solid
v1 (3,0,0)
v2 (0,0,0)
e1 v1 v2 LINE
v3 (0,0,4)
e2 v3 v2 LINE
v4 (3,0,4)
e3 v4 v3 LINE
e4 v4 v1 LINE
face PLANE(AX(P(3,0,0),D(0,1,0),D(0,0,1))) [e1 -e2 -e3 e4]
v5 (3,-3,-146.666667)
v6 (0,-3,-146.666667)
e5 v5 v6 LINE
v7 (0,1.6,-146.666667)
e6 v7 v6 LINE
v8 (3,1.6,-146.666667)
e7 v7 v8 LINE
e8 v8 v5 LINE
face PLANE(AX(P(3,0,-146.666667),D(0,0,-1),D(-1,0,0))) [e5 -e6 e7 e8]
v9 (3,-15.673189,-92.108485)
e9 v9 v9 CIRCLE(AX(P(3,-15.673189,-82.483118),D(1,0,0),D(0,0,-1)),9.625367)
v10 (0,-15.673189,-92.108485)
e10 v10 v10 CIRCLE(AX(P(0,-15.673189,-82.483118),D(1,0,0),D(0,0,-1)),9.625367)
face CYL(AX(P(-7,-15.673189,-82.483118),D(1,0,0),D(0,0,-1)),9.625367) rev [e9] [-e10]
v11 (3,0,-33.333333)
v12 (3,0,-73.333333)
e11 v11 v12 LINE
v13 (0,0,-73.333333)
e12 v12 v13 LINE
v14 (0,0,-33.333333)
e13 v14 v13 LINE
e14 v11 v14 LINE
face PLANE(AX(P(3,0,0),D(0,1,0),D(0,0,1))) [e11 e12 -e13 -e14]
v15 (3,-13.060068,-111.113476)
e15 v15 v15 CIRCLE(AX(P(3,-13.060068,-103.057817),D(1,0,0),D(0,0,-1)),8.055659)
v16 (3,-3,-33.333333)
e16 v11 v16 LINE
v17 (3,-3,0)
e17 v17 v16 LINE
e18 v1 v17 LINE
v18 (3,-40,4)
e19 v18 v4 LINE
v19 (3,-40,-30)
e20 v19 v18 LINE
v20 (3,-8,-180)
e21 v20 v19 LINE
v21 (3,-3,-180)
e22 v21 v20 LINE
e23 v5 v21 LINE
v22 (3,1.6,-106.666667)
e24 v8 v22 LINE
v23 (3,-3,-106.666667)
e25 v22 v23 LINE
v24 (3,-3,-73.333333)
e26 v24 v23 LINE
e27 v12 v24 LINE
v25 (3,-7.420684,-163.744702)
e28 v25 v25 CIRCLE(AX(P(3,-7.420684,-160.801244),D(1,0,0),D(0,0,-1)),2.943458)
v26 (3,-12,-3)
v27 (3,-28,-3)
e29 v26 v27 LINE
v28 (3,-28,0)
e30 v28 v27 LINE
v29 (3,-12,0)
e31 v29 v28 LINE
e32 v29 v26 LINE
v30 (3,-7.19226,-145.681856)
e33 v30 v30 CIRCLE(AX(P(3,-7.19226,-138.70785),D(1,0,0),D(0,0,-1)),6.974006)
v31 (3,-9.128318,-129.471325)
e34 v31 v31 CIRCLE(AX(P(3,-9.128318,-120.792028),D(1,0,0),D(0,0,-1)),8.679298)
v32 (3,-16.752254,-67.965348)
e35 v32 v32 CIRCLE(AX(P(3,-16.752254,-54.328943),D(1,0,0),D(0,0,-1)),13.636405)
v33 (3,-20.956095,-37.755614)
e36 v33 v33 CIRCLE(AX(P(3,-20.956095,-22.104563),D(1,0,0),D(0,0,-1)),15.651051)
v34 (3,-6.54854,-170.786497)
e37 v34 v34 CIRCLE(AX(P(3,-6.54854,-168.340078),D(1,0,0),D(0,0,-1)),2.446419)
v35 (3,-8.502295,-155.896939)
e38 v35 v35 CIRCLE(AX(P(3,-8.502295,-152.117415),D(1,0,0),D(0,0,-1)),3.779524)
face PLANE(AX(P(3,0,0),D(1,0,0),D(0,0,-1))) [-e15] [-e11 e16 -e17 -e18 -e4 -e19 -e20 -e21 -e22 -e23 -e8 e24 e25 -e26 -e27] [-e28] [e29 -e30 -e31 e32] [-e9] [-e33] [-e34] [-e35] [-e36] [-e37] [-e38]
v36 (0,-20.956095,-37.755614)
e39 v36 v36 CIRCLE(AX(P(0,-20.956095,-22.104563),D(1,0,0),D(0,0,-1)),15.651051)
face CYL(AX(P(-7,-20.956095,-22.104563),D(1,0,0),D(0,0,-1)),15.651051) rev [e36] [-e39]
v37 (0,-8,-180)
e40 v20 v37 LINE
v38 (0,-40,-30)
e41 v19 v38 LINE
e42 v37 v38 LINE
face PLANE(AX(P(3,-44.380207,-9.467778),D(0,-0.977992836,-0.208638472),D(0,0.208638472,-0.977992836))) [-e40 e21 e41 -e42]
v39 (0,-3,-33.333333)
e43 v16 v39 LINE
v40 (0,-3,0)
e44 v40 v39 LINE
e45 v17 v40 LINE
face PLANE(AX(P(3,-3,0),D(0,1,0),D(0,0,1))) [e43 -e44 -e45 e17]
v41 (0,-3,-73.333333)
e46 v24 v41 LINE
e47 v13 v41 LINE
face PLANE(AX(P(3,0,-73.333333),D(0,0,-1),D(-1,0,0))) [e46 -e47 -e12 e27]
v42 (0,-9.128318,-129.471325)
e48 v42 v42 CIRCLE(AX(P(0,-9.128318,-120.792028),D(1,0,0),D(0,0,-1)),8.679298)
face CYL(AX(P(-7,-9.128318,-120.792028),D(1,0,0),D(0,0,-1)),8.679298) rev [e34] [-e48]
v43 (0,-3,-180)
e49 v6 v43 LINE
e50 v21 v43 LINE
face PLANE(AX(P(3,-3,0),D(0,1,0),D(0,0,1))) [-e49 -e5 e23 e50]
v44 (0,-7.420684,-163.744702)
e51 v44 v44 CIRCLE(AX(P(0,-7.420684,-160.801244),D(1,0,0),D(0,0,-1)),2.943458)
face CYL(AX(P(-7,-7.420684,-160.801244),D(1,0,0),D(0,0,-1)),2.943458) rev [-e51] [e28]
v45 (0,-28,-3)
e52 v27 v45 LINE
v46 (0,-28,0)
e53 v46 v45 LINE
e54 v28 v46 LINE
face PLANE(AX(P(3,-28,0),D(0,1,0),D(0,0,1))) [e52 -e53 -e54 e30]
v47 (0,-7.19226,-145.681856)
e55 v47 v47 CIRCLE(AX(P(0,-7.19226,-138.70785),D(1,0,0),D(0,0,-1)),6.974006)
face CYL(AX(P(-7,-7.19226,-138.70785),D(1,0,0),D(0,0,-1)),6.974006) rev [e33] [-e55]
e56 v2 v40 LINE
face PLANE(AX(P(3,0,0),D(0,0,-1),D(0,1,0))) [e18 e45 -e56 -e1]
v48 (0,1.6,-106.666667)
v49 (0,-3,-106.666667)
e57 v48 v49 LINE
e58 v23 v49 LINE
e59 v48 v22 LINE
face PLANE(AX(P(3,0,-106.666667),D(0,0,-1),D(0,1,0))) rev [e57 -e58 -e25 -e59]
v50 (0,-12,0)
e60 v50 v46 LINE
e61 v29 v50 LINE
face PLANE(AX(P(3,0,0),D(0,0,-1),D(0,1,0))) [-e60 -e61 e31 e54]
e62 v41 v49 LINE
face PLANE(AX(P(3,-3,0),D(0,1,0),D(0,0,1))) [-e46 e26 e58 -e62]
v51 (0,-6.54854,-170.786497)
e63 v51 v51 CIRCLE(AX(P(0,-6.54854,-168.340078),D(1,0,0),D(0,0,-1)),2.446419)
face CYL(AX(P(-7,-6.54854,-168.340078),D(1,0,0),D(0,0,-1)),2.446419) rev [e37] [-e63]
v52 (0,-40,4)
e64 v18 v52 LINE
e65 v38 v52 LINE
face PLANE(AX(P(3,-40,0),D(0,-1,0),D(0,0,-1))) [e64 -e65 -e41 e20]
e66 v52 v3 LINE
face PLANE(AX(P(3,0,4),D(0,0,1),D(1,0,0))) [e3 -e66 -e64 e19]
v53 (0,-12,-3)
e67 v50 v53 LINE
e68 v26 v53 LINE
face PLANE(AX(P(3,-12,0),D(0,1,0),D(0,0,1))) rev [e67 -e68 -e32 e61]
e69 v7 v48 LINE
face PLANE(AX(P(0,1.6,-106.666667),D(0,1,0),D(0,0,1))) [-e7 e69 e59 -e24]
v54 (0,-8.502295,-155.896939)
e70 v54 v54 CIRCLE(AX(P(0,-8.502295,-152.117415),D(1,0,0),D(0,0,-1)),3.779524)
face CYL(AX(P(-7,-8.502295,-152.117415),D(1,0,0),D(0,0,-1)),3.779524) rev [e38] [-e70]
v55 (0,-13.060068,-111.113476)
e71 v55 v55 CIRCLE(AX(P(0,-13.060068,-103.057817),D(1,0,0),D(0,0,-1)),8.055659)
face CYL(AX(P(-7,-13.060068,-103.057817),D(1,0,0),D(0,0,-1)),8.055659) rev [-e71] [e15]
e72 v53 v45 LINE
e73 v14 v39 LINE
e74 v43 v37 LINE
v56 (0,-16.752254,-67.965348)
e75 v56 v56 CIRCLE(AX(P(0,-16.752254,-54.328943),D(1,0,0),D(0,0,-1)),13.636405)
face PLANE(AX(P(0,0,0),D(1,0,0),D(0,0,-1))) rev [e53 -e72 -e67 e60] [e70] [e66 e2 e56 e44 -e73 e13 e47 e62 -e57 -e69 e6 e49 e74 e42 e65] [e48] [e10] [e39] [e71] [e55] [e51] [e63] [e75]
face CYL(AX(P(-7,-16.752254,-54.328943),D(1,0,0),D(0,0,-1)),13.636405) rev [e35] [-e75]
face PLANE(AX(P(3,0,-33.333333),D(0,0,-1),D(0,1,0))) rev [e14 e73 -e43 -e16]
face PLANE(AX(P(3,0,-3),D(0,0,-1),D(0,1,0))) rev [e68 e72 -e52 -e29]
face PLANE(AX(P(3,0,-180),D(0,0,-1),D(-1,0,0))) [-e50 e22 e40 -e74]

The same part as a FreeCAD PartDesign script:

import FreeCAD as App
import Part
import Sketcher
from FreeCAD import Vector


def add_polygon(sketch, points):
    """Adds a closed chain of lines whose ends are joined by coincident constraints."""
    first, n = sketch.GeometryCount, len(points)
    for a, b in zip(points, points[1:] + points[:1]):
        sketch.addGeometry(Part.LineSegment(App.Vector(*a, 0), App.Vector(*b, 0)), False)
    for i in range(n):
        sketch.addConstraint(Sketcher.Constraint("Coincident", first + i, 2, first + (i + 1) % n, 1))

doc = App.newDocument("Part")
body = doc.addObject("PartDesign::Body", "Body")

# Sketch on YZ plane
sketch1 = body.newObject("Sketcher::SketchObject", "Sketch")
sketch1.AttachmentSupport = (doc.getObject("YZ_Plane"), [""])
sketch1.MapMode = "FlatFace"
add_polygon(sketch1, [(-40, -30), (-8, -180), (-3, -180), (-3, -146.7), (0, -146.7), (0, -106.7), (-3, -106.7), (-3, -73.3), (0, -73.3), (0, -33.3), (-3, -33.3), (-3, 0), (0, 0), (0, 4), (-40, 4)])  # lines 0-14
add_polygon(sketch1, [(-28, -3), (-28, 0), (-12, 0), (-12, -3)])  # lines 15-18
sketch1.addConstraint([
    Sketcher.Constraint("Horizontal", 1),
    Sketcher.Constraint("Vertical", 2),
    Sketcher.Constraint("Horizontal", 3),
    Sketcher.Constraint("Vertical", 4),
    Sketcher.Constraint("Horizontal", 5),
    Sketcher.Constraint("Vertical", 6),
    Sketcher.Constraint("Horizontal", 7),
    Sketcher.Constraint("Vertical", 8),
    Sketcher.Constraint("Horizontal", 9),
    Sketcher.Constraint("Vertical", 10),
    Sketcher.Constraint("Horizontal", 11),
    Sketcher.Constraint("Vertical", 12),
    Sketcher.Constraint("Horizontal", 13),
    Sketcher.Constraint("Vertical", 14),
    Sketcher.Constraint("Vertical", 15),
    Sketcher.Constraint("Horizontal", 16),
    Sketcher.Constraint("Vertical", 17),
    Sketcher.Constraint("Horizontal", 18),
    Sketcher.Constraint("Coincident", 11, 2, -1, 1),
    Sketcher.Constraint("PointOnObject", 3, 2, -2),
    Sketcher.Constraint("PointOnObject", 7, 2, -2),
    Sketcher.Constraint("PointOnObject", 15, 2, -1),
    Sketcher.Constraint("Vertical", 2, 2, 5, 2),
    Sketcher.Constraint("Vertical", 6, 2, 9, 2),
    Sketcher.Constraint("Equal", 13, 4),
    Sketcher.Constraint("Equal", 2, 6),
    Sketcher.Constraint("Equal", 4, 8),
    Sketcher.Constraint("Equal", 6, 10),
    Sketcher.Constraint("Equal", 11, 15),
    Sketcher.Constraint("DistanceX", 1, 1, 1, 2, 5.0),
    Sketcher.Constraint("DistanceX", 3, 1, 3, 2, 3.0),
    Sketcher.Constraint("DistanceX", 13, 2, 13, 1, 40.0),
    Sketcher.Constraint("DistanceX", 16, 1, 16, 2, 16.0),
    Sketcher.Constraint("DistanceY", 12, 1, 12, 2, 4.0),
    Sketcher.Constraint("DistanceY", 14, 2, 14, 1, 34.0),
    Sketcher.Constraint("DistanceY", 0, 2, -1, 1, 180.0),
    Sketcher.Constraint("DistanceX", 15, 2, -1, 1, 28.0),
])
pad1 = body.newObject("PartDesign::Pad", "Pad")
pad1.Profile = sketch1
pad1.Length = 3

# Sketch on YZ plane
sketch2 = body.newObject("Sketcher::SketchObject", "Sketch001")
sketch2.AttachmentSupport = (doc.getObject("YZ_Plane"), [""])
sketch2.MapMode = "FlatFace"
sketch2.AttachmentOffset = App.Placement(Vector(0, 0, 3), App.Rotation())
add_polygon(sketch2, [(1.6, -106.7), (0, -106.7), (0, -146.7), (1.6, -146.7)])  # lines 0-3
sketch2.addConstraint([
    Sketcher.Constraint("Horizontal", 0),
    Sketcher.Constraint("Vertical", 1),
    Sketcher.Constraint("Horizontal", 2),
    Sketcher.Constraint("Vertical", 3),
    Sketcher.Constraint("PointOnObject", 0, 2, -2),
    Sketcher.Constraint("DistanceY", 1, 2, 1, 1, 40.0),
    Sketcher.Constraint("DistanceX", 0, 2, 0, 1, 1.6),
    Sketcher.Constraint("DistanceY", 0, 2, -1, 1, 106.666667),
])
pad2 = body.newObject("PartDesign::Pad", "Pad001")
pad2.Profile = sketch2
pad2.Length = 3
pad2.Reversed = True

# Sketch on YZ plane
sketch3 = body.newObject("Sketcher::SketchObject", "Sketch002")
sketch3.AttachmentSupport = (doc.getObject("YZ_Plane"), [""])
sketch3.MapMode = "FlatFace"
sketch3.AttachmentOffset = App.Placement(Vector(0, 0, 3), App.Rotation())
sketch3.addGeometry([
    Part.Circle(Vector(-21, -22.1, 0), Vector(0, 0, 1), 15.7),  # 0
    Part.Circle(Vector(-16.8, -54.3, 0), Vector(0, 0, 1), 13.6),  # 1
    Part.Circle(Vector(-15.7, -82.5, 0), Vector(0, 0, 1), 9.6),  # 2
    Part.Circle(Vector(-13.1, -103.1, 0), Vector(0, 0, 1), 8.1),  # 3
    Part.Circle(Vector(-9.1, -120.8, 0), Vector(0, 0, 1), 8.7),  # 4
    Part.Circle(Vector(-7.2, -138.7, 0), Vector(0, 0, 1), 7),  # 5
    Part.Circle(Vector(-6.5, -168.3, 0), Vector(0, 0, 1), 2.4),  # 6
    Part.Circle(Vector(-8.5, -152.1, 0), Vector(0, 0, 1), 3.8),  # 7
    Part.Circle(Vector(-7.4, -160.8, 0), Vector(0, 0, 1), 2.9),  # 8
], False)
sketch3.addConstraint([
    Sketcher.Constraint("Diameter", 0, 31.302101),
    Sketcher.Constraint("Diameter", 1, 27.272809),
    Sketcher.Constraint("Diameter", 3, 16.111319),
    Sketcher.Constraint("Diameter", 5, 13.948012),
    Sketcher.Constraint("Diameter", 2, 19.250734),
    Sketcher.Constraint("Diameter", 4, 17.358595),
    Sketcher.Constraint("Diameter", 6, 4.892838),
    Sketcher.Constraint("Diameter", 7, 7.559047),
    Sketcher.Constraint("Diameter", 8, 5.886916),
    Sketcher.Constraint("DistanceY", 3, 3, 2, 3, 20.574699),
    Sketcher.Constraint("DistanceY", 7, 3, 3, 3, 49.059598),
    Sketcher.Constraint("DistanceX", 2, 3, -1, 1, 15.673189),
    Sketcher.Constraint("DistanceX", 4, 3, -1, 1, 9.128318),
    Sketcher.Constraint("DistanceX", 5, 3, -1, 1, 7.19226),
    Sketcher.Constraint("DistanceY", 5, 3, -1, 1, 138.70785),
    Sketcher.Constraint("DistanceX", 6, 3, -1, 1, 6.54854),
    Sketcher.Constraint("DistanceX", 0, 3, 1, 3, 4.203841),
    Sketcher.Constraint("DistanceY", 1, 3, 0, 3, 32.22438),
    Sketcher.Constraint("DistanceX", 2, 3, 3, 3, 2.613121),
    Sketcher.Constraint("DistanceY", 4, 3, 3, 3, 17.734211),
    Sketcher.Constraint("DistanceY", 6, 3, 4, 3, 47.54805),
    Sketcher.Constraint("DistanceX", 7, 3, 8, 3, 1.08161),
    Sketcher.Constraint("DistanceY", 8, 3, 7, 3, 8.683829),
    Sketcher.Constraint("DistanceX", 0, 3, -1, 1, 20.956095),
    Sketcher.Constraint("DistanceY", 0, 3, -1, 1, 22.104563),
    Sketcher.Constraint("DistanceY", 2, 3, -1, 1, 82.483118),
    Sketcher.Constraint("DistanceX", 7, 3, -1, 1, 8.502295),
])
pocket1 = body.newObject("PartDesign::Pocket", "Pocket")
pocket1.Profile = sketch3
pocket1.Length = 10

doc.recompute()
